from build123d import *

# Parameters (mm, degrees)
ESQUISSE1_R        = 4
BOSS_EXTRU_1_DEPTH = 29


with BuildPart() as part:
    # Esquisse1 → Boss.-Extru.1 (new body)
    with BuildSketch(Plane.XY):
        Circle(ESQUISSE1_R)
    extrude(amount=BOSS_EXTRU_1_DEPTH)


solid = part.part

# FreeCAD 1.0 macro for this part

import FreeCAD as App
import Part
import Sketcher

V = App.Vector
Q = App.Units.Quantity

doc = App.newDocument("Part")
body = doc.addObject("PartDesign::Body", "Body")

# Sketch on XY plane
sketch1 = body.newObject("Sketcher::SketchObject", "Sketch")
sketch1.AttachmentSupport = (doc.getObject("XY_Plane"), [""])
sketch1.MapMode = "FlatFace"
sketch1.addGeometry(Part.Circle(V(0, 0, 0), V(0, 0, 1), 4), False)
sketch1.addConstraint(Sketcher.Constraint("Coincident", 0, 3, -1, 1))
sketch1.addConstraint(Sketcher.Constraint("Diameter", 0, Q("8 mm")))
pad1 = body.newObject("PartDesign::Pad", "Pad")
pad1.Profile = sketch1
pad1.Length = 29

doc.recompute()
